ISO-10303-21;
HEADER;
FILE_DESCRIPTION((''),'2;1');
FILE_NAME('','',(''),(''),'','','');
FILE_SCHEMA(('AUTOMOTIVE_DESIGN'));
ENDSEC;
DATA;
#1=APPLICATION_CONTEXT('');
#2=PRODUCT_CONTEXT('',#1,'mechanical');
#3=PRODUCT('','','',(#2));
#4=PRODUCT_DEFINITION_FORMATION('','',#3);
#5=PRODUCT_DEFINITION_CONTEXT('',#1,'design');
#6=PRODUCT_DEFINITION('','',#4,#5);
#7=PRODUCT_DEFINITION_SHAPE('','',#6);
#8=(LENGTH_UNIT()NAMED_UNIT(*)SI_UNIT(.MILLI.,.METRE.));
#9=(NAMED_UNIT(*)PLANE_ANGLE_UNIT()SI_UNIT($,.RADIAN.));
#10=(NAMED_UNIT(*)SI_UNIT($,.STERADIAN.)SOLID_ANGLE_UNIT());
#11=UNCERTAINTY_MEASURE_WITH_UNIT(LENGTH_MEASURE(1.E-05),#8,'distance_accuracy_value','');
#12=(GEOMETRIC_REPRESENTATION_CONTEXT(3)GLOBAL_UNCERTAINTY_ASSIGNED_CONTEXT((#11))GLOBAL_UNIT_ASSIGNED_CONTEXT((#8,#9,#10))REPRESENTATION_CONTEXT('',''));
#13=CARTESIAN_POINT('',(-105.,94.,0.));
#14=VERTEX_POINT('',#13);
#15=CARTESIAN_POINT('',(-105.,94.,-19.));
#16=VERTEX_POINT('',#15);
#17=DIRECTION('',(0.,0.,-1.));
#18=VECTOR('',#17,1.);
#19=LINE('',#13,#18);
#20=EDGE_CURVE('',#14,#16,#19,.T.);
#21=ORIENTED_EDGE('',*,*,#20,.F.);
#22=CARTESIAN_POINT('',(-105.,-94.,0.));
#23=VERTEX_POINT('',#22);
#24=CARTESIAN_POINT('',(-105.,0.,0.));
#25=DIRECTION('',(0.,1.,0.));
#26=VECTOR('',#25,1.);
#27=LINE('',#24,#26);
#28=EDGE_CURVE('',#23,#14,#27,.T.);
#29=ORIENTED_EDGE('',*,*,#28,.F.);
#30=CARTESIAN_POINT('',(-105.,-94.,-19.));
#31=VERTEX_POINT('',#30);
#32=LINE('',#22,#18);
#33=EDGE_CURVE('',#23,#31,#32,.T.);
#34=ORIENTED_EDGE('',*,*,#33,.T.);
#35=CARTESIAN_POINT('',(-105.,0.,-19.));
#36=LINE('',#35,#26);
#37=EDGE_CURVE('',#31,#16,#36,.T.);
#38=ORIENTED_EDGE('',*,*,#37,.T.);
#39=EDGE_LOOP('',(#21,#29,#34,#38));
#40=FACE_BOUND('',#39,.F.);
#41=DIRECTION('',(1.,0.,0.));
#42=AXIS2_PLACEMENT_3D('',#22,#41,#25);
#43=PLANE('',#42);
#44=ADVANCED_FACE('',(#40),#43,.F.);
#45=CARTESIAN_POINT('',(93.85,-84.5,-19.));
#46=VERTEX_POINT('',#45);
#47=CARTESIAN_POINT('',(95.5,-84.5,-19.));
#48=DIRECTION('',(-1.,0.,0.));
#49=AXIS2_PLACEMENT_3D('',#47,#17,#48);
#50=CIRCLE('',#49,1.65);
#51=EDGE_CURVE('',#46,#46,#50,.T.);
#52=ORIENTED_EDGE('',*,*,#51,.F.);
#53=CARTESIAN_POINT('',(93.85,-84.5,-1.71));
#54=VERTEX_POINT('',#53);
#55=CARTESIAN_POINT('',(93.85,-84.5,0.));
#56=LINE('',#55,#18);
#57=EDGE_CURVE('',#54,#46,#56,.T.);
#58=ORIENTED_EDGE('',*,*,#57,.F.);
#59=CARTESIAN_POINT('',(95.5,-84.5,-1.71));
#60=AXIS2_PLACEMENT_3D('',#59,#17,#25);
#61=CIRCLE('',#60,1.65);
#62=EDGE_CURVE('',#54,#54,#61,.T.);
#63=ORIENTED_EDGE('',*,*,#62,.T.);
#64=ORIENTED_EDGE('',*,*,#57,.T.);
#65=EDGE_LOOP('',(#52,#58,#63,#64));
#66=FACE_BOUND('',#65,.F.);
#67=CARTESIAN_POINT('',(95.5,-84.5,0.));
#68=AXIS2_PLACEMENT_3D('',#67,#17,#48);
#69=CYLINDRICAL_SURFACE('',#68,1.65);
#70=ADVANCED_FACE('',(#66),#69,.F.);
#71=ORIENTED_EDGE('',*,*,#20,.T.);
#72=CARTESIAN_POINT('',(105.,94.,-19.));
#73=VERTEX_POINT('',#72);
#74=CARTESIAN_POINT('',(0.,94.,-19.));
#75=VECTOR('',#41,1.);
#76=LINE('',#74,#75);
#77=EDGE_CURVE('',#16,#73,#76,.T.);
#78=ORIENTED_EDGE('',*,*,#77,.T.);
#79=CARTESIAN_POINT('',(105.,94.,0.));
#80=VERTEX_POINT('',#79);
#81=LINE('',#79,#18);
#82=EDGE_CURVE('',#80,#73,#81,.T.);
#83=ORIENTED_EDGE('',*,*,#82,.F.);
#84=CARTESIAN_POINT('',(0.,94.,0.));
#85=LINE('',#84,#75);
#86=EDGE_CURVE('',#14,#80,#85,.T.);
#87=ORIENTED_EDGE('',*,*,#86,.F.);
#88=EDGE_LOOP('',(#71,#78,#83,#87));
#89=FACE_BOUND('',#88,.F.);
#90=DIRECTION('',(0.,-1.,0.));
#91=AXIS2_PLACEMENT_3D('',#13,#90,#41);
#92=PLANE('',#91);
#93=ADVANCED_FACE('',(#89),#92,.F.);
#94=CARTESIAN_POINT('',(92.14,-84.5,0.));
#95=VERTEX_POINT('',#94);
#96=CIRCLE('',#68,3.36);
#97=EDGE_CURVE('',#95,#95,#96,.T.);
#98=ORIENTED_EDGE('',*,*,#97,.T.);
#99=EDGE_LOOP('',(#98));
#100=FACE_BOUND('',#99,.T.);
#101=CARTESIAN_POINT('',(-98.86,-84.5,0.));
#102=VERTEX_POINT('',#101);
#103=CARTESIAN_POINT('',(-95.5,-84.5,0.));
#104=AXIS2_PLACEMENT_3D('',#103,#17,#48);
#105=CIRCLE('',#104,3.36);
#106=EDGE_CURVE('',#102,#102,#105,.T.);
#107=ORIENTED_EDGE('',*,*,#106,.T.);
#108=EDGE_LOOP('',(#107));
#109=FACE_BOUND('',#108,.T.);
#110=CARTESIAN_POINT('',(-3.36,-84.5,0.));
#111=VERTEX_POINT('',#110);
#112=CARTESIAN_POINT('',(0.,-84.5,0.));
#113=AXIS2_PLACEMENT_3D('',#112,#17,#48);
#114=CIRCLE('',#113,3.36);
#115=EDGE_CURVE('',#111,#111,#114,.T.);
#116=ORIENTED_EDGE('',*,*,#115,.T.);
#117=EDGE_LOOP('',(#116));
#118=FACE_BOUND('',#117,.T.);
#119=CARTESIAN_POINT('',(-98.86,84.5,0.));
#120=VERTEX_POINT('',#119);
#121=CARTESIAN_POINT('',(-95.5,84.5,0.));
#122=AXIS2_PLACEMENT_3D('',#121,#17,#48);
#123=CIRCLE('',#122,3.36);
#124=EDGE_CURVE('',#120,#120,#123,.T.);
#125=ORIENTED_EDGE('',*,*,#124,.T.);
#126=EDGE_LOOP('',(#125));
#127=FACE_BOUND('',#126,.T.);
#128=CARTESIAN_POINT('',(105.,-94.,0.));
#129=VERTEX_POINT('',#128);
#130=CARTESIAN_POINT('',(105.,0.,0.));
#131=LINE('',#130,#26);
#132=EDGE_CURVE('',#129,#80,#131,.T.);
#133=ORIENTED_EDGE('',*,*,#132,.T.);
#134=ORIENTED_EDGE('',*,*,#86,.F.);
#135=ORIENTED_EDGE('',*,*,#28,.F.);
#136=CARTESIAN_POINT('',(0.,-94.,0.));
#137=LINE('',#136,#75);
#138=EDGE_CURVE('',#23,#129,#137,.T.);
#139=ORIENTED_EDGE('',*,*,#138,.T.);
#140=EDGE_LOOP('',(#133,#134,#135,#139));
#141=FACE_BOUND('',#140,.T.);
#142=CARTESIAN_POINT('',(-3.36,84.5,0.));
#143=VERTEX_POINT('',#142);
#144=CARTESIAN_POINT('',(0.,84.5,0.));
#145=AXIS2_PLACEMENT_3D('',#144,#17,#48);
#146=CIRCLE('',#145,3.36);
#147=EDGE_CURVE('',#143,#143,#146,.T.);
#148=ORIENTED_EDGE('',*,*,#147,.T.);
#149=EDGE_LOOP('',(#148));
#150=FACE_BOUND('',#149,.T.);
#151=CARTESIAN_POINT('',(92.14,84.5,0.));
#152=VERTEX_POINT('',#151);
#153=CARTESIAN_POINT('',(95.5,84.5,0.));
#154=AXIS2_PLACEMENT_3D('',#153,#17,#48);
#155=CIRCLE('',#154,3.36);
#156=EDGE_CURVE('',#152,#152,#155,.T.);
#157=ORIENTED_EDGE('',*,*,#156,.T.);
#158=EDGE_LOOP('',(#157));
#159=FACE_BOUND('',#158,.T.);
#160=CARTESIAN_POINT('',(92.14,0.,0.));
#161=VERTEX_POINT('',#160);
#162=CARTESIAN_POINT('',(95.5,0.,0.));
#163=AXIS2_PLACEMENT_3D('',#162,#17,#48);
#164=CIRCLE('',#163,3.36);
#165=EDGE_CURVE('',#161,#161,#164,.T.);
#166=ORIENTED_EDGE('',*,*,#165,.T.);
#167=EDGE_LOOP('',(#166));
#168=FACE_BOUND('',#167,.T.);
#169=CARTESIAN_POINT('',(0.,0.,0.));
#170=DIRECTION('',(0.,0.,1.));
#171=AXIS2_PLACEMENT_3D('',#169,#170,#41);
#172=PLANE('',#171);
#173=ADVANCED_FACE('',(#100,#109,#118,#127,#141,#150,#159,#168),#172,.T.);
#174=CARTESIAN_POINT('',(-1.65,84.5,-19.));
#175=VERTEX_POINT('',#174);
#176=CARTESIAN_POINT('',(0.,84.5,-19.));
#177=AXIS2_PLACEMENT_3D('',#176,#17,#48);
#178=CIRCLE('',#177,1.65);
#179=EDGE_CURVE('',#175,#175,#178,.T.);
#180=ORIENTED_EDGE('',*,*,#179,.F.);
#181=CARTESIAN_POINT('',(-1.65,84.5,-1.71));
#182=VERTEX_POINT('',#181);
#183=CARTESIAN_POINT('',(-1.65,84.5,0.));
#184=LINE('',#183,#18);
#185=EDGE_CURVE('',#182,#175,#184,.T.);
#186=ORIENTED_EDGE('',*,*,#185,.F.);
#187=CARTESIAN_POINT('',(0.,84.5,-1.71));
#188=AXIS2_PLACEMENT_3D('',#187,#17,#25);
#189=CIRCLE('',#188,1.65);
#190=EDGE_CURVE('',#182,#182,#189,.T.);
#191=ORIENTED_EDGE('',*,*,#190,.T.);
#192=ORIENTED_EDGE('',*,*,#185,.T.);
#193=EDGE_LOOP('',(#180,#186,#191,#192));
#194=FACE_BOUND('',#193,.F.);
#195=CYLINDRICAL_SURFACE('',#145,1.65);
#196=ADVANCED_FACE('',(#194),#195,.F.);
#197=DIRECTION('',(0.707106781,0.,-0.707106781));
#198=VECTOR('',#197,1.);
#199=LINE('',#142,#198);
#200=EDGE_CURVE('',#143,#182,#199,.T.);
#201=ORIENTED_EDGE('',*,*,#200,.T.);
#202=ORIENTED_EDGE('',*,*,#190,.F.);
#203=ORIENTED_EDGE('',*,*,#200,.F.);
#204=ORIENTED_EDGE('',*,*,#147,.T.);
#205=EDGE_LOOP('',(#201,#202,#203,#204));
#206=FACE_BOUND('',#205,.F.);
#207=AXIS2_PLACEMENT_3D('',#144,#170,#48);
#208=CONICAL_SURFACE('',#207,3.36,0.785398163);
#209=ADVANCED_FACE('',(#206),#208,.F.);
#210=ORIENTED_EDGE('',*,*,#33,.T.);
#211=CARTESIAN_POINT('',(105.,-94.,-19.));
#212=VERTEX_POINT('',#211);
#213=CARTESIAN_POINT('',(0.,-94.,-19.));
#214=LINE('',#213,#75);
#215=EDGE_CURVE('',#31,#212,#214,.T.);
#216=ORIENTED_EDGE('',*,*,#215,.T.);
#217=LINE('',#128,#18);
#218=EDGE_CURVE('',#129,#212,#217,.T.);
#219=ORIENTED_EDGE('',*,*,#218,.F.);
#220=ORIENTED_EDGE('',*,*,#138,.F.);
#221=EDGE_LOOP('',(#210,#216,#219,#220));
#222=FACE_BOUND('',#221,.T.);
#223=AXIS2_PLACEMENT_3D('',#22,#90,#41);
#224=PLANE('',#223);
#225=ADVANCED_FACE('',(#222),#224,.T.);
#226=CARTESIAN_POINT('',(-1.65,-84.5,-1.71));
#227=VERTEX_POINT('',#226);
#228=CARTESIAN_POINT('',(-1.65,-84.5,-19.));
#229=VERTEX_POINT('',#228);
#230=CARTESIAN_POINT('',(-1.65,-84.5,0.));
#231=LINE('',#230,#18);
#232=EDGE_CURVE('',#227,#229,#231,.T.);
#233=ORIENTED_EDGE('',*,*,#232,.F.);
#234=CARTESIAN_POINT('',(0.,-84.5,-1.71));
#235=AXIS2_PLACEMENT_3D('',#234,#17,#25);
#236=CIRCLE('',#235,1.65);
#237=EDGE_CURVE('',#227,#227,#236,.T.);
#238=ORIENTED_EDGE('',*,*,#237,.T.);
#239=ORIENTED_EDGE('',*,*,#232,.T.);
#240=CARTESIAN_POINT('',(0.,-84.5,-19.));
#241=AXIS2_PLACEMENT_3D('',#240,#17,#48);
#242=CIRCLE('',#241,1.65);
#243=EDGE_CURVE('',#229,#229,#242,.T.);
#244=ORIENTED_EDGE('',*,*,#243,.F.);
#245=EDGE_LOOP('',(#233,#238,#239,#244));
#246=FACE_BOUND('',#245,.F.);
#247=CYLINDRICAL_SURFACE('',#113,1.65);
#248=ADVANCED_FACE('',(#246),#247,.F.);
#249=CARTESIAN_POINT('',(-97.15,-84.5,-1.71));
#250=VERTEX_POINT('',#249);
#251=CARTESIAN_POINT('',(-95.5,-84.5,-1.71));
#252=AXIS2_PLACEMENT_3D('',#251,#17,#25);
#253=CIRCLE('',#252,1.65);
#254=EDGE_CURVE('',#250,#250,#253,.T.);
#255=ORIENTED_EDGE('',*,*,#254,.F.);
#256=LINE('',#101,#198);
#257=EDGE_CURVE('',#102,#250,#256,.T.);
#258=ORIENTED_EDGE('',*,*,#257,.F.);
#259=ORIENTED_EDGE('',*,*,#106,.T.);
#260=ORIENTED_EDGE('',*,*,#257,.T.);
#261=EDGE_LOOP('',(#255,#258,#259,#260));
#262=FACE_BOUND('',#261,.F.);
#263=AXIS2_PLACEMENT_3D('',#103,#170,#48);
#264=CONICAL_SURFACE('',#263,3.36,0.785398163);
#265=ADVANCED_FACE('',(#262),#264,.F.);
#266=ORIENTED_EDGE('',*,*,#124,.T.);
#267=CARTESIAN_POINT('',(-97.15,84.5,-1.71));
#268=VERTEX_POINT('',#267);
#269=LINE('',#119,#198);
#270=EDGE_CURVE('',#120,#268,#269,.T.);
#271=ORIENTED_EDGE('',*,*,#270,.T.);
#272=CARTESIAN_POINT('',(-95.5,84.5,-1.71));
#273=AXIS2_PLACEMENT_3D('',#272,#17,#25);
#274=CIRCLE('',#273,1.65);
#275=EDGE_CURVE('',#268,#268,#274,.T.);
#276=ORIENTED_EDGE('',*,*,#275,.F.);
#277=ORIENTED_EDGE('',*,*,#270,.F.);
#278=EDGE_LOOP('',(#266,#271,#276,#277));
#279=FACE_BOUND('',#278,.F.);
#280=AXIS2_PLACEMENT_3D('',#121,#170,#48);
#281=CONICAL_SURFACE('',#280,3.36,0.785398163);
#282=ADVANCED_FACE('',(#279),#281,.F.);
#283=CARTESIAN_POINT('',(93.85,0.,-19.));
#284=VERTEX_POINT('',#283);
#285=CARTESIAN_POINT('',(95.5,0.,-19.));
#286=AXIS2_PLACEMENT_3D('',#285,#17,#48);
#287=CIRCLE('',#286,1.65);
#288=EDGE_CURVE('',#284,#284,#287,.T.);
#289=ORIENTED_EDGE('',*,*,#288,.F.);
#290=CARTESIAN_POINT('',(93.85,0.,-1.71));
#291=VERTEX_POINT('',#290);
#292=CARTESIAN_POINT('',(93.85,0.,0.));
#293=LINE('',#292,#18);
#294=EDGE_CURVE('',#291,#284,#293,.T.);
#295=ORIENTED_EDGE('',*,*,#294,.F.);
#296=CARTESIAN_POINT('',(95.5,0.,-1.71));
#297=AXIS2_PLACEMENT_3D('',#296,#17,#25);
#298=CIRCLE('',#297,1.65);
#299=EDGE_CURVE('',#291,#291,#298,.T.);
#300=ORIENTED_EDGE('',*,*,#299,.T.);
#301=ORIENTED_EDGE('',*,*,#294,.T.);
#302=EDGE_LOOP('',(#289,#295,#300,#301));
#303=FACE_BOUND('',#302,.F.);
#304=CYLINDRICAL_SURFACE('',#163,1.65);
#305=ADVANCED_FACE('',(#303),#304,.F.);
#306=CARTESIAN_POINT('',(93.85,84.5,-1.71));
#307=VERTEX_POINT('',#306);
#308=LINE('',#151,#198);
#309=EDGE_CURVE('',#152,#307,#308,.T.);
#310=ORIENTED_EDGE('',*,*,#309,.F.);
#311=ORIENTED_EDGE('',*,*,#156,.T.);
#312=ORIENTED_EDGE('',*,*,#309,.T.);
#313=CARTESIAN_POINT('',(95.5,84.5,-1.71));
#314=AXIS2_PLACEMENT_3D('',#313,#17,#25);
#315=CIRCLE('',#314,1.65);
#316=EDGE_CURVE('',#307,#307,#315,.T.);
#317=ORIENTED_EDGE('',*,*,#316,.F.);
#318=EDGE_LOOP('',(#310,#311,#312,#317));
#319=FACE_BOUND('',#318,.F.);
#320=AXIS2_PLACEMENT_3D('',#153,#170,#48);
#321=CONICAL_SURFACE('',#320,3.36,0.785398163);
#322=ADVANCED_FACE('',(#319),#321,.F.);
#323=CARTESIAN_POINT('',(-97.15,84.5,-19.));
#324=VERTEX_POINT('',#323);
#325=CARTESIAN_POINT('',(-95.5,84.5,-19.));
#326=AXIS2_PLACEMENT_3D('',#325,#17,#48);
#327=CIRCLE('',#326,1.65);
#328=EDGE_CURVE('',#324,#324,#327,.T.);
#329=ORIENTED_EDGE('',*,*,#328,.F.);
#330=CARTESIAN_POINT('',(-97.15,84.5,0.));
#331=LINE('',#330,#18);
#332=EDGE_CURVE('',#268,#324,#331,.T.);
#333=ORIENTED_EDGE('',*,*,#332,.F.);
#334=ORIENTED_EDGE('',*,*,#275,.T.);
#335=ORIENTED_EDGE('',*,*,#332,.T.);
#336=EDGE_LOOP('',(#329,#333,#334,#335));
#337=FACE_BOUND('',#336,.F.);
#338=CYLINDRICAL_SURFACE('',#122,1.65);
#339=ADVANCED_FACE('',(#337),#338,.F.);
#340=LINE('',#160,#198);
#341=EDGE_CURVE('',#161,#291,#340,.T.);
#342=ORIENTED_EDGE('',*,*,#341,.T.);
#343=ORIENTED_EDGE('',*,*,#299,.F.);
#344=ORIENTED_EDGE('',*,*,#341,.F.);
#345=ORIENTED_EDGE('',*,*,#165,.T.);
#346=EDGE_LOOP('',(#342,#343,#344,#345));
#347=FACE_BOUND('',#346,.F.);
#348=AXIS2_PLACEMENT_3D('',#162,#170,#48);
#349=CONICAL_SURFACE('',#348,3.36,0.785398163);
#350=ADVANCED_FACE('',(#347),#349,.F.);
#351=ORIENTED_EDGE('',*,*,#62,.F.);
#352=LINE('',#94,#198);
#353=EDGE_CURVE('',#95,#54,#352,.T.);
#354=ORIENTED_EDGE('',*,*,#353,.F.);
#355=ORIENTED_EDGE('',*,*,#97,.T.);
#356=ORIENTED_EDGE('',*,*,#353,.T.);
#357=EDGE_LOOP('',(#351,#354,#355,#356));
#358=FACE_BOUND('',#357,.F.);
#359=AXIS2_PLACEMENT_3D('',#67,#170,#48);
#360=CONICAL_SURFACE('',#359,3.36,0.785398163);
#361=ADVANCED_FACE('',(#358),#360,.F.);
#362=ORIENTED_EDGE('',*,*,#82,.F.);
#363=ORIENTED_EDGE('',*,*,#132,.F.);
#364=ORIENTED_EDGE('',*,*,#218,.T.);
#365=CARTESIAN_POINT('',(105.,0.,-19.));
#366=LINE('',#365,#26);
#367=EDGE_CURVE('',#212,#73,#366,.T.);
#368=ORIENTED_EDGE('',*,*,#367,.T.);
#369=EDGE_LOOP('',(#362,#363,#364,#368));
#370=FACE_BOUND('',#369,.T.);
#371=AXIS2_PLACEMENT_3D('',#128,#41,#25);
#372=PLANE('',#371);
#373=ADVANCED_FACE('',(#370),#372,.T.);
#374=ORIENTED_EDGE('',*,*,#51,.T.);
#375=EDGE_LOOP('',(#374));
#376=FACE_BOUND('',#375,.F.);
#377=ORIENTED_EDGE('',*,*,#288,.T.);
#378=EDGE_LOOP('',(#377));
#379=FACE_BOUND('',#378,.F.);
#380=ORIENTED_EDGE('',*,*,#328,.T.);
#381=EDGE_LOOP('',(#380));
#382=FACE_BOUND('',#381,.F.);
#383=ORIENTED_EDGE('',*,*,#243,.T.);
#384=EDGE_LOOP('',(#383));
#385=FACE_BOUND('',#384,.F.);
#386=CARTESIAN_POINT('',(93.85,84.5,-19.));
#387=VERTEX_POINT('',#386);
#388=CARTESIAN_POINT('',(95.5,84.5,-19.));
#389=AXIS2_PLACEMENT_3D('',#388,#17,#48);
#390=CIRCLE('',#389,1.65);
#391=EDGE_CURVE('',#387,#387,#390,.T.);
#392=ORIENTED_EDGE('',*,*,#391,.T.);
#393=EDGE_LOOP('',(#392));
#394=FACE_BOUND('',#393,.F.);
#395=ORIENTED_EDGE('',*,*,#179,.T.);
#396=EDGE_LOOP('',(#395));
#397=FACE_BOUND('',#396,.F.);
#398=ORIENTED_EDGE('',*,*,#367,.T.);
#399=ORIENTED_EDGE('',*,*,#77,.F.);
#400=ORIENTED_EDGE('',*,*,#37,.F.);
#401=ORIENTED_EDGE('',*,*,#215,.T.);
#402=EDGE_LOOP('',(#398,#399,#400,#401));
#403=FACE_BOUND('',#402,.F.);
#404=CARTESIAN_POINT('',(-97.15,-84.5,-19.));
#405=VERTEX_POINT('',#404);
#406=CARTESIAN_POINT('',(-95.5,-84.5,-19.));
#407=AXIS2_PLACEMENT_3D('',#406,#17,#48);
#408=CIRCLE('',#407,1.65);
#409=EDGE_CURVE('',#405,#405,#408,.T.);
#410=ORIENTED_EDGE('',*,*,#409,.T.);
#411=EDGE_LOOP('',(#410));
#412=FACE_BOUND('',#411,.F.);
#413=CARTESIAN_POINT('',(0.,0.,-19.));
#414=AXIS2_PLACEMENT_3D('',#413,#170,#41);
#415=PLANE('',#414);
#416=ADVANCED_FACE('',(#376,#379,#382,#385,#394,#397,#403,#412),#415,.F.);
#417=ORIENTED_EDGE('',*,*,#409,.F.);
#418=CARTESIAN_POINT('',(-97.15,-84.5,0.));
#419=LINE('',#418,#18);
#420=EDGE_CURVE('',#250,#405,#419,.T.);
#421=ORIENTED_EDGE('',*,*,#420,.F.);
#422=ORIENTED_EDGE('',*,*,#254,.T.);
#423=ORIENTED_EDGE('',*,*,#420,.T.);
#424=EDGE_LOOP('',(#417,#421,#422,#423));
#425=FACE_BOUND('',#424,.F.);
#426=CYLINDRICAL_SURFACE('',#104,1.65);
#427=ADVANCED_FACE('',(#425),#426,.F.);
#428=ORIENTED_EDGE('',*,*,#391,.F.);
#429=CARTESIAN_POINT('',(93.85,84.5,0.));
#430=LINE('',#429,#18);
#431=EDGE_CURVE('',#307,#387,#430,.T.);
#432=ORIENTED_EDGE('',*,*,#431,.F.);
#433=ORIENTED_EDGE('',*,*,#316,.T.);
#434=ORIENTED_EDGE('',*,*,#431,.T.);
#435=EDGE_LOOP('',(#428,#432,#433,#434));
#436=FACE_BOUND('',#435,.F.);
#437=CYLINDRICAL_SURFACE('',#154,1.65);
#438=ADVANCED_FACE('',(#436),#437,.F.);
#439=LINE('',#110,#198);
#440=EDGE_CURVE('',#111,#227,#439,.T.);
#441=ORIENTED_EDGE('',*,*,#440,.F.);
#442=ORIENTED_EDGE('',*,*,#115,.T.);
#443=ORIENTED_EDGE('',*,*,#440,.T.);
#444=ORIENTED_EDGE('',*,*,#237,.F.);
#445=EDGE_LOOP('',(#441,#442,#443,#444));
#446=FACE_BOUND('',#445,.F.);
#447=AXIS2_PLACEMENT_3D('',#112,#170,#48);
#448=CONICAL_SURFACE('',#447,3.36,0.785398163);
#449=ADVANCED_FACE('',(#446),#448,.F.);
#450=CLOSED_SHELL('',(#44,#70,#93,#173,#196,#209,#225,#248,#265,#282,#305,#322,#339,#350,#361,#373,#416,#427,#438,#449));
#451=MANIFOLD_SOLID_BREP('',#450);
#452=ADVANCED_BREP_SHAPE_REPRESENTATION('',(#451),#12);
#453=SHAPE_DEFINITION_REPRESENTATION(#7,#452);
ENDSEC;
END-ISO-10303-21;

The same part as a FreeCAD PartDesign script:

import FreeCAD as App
import Part
import Sketcher
from FreeCAD import Vector
Q = App.Units.Quantity


def add_polygon(sketch, points):
    """Adds a closed chain of lines whose ends are joined by coincident constraints."""
    first, n = sketch.GeometryCount, len(points)
    for a, b in zip(points, points[1:] + points[:1]):
        sketch.addGeometry(Part.LineSegment(App.Vector(*a, 0), App.Vector(*b, 0)), False)
    for i in range(n):
        sketch.addConstraint(Sketcher.Constraint("Coincident", first + i, 2, first + (i + 1) % n, 1))

doc = App.newDocument("Part")
body = doc.addObject("PartDesign::Body", "Body")

# Sketch on XY plane
sketch1 = body.newObject("Sketcher::SketchObject", "Sketch")
sketch1.AttachmentSupport = (doc.getObject("XY_Plane"), [""])
sketch1.MapMode = "FlatFace"
add_polygon(sketch1, [(-105, 94), (-105, -94), (105, -94), (105, 94)])  # lines 0-3
sketch1.addConstraint([
    Sketcher.Constraint("Vertical", 0),
    Sketcher.Constraint("Horizontal", 1),
    Sketcher.Constraint("Vertical", 2),
    Sketcher.Constraint("Horizontal", 3),
    Sketcher.Constraint("Symmetric", 0, 2, 2, 2, -1, 1),
    Sketcher.Constraint("DistanceX", 1, 1, 1, 2, Q("210 mm")),
    Sketcher.Constraint("DistanceY", 0, 2, 0, 1, Q("188 mm")),
])
pad1 = body.newObject("PartDesign::Pad", "Pad")
pad1.Profile = sketch1
pad1.Length = 19
pad1.Reversed = True

# Sketch on XY plane
sketch2 = body.newObject("Sketcher::SketchObject", "Sketch001")
sketch2.AttachmentSupport = (doc.getObject("XY_Plane"), [""])
sketch2.MapMode = "FlatFace"
sketch2.addGeometry([
    Part.Circle(Vector(-95.5, 84.5, 0), Vector(0, 0, 1), 1.6),  # 0
    Part.Circle(Vector(0, 84.5, 0), Vector(0, 0, 1), 1.6),  # 1
    Part.Circle(Vector(95.5, 84.5, 0), Vector(0, 0, 1), 1.6),  # 2
    Part.Circle(Vector(95.5, 0, 0), Vector(0, 0, 1), 1.6),  # 3
    Part.Circle(Vector(95.5, -84.5, 0), Vector(0, 0, 1), 1.6),  # 4
    Part.Circle(Vector(0, -84.5, 0), Vector(0, 0, 1), 1.6),  # 5
    Part.Circle(Vector(-95.5, -84.5, 0), Vector(0, 0, 1), 1.6),  # 6
], False)
sketch2.addConstraint([
    Sketcher.Constraint("Equal", 0, 1),
    Sketcher.Constraint("Equal", 1, 2),
    Sketcher.Constraint("Equal", 2, 3),
    Sketcher.Constraint("Equal", 3, 4),
    Sketcher.Constraint("Equal", 4, 5),
    Sketcher.Constraint("Equal", 5, 6),
    Sketcher.Constraint("Symmetric", 0, 3, 4, 3, -1, 1),
    Sketcher.Constraint("Symmetric", 1, 3, 5, 3, -1, 1),
    Sketcher.Constraint("Symmetric", 2, 3, 6, 3, -1, 1),
    Sketcher.Constraint("Symmetric", 0, 3, 2, 3, -2),
    Sketcher.Constraint("PointOnObject", 1, 3, -2),
    Sketcher.Constraint("PointOnObject", 3, 3, -1),
    Sketcher.Constraint("Horizontal", 0, 3, 1, 3),
    Sketcher.Constraint("Vertical", 2, 3, 3, 3),
    Sketcher.Constraint("Diameter", 0, Q("3.3 mm")),
    Sketcher.Constraint("DistanceX", 0, 3, 2, 3, Q("191 mm")),
    Sketcher.Constraint("DistanceY", 4, 3, 2, 3, Q("169 mm")),
])
doc.recompute()
hole = body.newObject("PartDesign::Hole", "Hole")
hole.Profile = sketch2
hole.ThreadType = "None"
hole.Diameter = 3.3
hole.DepthType = "ThroughAll"
hole.HoleCutType = "Countersink"
hole.HoleCutDiameter = 6.72
hole.HoleCutCountersinkAngle = 90

doc.recompute()
